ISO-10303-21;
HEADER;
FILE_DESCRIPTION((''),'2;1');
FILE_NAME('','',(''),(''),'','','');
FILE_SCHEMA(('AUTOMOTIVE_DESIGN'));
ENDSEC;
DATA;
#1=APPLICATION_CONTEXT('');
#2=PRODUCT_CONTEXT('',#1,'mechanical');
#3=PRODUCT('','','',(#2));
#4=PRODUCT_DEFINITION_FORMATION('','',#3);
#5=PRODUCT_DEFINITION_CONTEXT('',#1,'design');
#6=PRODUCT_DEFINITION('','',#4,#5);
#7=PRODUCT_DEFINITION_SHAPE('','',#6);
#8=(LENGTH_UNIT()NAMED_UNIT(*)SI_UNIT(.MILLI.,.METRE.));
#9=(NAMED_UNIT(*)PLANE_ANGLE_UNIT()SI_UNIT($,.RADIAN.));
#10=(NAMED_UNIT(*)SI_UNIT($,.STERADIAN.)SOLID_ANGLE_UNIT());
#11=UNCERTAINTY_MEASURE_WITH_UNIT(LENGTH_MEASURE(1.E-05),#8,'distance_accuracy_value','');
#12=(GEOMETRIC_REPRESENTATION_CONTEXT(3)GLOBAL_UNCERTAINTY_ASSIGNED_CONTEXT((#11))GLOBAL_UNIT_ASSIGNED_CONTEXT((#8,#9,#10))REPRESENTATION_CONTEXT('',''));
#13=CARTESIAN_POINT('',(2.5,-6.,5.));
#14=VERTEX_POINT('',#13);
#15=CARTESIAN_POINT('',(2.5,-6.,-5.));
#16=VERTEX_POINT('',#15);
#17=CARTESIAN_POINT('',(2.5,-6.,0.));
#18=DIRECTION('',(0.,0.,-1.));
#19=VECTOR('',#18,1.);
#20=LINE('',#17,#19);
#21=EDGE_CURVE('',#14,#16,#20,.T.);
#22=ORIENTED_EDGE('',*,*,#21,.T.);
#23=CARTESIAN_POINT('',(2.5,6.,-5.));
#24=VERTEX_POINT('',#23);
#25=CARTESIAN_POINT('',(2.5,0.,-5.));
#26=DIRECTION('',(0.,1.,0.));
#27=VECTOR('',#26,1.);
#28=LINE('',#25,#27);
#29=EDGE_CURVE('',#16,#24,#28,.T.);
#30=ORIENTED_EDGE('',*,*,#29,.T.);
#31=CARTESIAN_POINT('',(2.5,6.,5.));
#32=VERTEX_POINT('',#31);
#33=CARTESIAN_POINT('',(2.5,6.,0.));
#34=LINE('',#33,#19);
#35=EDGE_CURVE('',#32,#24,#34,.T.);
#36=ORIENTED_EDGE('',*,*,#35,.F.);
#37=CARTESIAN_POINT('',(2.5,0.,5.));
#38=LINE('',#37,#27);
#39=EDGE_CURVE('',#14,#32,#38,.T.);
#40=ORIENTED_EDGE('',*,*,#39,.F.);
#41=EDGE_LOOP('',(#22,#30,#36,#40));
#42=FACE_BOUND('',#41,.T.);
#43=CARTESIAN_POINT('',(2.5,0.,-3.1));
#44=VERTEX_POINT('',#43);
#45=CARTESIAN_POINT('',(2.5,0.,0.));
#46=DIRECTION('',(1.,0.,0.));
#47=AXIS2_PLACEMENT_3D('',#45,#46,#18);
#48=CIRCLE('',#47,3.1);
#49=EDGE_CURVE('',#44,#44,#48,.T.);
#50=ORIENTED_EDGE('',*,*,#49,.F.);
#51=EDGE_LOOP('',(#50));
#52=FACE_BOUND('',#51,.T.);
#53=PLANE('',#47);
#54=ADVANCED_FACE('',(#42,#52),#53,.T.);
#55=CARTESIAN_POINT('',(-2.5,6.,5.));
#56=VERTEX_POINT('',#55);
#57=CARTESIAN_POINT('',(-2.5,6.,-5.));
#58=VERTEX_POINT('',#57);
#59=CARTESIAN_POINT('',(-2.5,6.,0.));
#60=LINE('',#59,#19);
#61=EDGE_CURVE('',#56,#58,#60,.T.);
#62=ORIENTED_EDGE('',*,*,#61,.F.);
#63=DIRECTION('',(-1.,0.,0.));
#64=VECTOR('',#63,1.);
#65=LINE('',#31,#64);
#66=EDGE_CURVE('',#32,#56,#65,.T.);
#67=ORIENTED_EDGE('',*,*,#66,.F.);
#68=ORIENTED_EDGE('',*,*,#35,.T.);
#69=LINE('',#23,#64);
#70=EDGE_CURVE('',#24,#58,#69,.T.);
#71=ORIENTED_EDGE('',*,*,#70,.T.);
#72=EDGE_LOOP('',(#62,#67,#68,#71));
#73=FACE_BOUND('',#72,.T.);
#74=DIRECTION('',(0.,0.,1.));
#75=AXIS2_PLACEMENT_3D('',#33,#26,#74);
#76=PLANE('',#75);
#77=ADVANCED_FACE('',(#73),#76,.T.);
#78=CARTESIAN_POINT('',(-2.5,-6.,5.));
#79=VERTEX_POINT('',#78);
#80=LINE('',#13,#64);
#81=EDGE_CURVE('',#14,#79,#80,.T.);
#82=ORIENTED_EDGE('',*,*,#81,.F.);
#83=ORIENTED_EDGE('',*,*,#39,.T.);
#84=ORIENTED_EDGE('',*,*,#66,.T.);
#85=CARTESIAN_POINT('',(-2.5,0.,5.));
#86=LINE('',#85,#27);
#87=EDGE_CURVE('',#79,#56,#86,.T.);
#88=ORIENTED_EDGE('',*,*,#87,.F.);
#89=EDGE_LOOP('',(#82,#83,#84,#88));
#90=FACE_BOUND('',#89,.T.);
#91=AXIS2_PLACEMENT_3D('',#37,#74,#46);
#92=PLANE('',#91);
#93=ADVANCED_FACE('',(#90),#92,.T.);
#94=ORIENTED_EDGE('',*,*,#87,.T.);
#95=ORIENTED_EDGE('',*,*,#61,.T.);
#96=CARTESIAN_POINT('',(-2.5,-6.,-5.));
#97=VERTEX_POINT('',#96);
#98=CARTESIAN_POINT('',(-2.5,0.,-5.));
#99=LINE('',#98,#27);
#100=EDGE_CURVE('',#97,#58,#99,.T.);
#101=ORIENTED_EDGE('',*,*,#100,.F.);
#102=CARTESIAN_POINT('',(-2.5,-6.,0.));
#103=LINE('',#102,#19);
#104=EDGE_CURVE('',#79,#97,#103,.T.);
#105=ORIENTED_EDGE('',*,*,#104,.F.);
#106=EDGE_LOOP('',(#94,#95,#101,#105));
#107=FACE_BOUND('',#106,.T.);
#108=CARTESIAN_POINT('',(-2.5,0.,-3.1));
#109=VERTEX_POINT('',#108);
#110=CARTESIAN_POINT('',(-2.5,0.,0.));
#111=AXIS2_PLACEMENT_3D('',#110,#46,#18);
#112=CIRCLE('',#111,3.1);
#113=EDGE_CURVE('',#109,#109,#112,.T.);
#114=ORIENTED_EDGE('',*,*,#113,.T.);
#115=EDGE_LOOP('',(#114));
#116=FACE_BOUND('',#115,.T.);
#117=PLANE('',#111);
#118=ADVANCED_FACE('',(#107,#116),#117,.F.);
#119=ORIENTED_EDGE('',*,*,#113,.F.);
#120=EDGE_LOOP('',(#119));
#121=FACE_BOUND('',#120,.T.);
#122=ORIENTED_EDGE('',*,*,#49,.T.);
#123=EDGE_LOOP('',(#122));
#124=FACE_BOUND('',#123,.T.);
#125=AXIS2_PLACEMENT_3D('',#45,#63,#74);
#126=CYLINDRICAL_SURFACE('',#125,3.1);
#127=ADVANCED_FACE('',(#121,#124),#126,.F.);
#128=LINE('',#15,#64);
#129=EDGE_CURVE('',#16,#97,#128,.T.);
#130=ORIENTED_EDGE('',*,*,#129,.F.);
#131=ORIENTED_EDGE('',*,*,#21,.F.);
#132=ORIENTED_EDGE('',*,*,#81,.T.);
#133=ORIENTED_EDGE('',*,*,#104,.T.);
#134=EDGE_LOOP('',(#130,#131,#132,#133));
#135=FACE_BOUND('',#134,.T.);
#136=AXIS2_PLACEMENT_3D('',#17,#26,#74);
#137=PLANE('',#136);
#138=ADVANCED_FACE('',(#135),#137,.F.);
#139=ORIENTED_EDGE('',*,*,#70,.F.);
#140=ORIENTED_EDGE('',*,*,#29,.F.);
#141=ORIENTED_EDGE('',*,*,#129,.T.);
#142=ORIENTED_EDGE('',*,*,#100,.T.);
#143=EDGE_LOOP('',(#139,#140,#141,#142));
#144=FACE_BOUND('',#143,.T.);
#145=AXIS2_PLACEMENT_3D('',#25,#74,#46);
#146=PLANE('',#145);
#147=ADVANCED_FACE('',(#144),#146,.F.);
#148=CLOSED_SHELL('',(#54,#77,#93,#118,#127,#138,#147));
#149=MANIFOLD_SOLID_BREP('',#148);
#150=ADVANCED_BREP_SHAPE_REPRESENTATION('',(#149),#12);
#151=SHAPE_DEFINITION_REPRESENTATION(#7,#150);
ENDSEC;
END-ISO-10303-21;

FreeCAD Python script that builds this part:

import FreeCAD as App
import Part
import Sketcher
from FreeCAD import Vector
Q = App.Units.Quantity


def add_polygon(sketch, points):
    """Adds a closed chain of lines whose ends are joined by coincident constraints."""
    first, n = sketch.GeometryCount, len(points)
    for a, b in zip(points, points[1:] + points[:1]):
        sketch.addGeometry(Part.LineSegment(App.Vector(*a, 0), App.Vector(*b, 0)), False)
    for i in range(n):
        sketch.addConstraint(Sketcher.Constraint("Coincident", first + i, 2, first + (i + 1) % n, 1))

doc = App.newDocument("Part")
body = doc.addObject("PartDesign::Body", "Body")

sketch1 = body.newObject("Sketcher::SketchObject", "Sketch")
sketch1.AttachmentSupport = (doc.getObject("YZ_Plane"), [""])
sketch1.MapMode = "FlatFace"
add_polygon(sketch1, [(6, 5), (-6, 5), (-6, -5), (6, -5)])
sketch1.addGeometry(Part.Circle(Vector(0, 0, 0), Vector(0, 0, 1), 3.1), False)
sketch1.addConstraint(Sketcher.Constraint("Horizontal", 0))
sketch1.addConstraint(Sketcher.Constraint("Vertical", 1))
sketch1.addConstraint(Sketcher.Constraint("Horizontal", 2))
sketch1.addConstraint(Sketcher.Constraint("Vertical", 3))
sketch1.addConstraint(Sketcher.Constraint("Coincident", 4, 3, -1, 1))
sketch1.addConstraint(Sketcher.Constraint("Symmetric", 0, 2, 2, 2, -1, 1))
sketch1.addConstraint(Sketcher.Constraint("Diameter", 4, Q("6.2 mm")))
sketch1.addConstraint(Sketcher.Constraint("DistanceX", 0, 2, 0, 1, Q("12 mm")))
sketch1.addConstraint(Sketcher.Constraint("DistanceY", 1, 2, 1, 1, Q("10 mm")))
pad1 = body.newObject("PartDesign::Pad", "Pad")
pad1.Profile = sketch1
pad1.Length = 5
pad1.Midplane = True

doc.recompute()
